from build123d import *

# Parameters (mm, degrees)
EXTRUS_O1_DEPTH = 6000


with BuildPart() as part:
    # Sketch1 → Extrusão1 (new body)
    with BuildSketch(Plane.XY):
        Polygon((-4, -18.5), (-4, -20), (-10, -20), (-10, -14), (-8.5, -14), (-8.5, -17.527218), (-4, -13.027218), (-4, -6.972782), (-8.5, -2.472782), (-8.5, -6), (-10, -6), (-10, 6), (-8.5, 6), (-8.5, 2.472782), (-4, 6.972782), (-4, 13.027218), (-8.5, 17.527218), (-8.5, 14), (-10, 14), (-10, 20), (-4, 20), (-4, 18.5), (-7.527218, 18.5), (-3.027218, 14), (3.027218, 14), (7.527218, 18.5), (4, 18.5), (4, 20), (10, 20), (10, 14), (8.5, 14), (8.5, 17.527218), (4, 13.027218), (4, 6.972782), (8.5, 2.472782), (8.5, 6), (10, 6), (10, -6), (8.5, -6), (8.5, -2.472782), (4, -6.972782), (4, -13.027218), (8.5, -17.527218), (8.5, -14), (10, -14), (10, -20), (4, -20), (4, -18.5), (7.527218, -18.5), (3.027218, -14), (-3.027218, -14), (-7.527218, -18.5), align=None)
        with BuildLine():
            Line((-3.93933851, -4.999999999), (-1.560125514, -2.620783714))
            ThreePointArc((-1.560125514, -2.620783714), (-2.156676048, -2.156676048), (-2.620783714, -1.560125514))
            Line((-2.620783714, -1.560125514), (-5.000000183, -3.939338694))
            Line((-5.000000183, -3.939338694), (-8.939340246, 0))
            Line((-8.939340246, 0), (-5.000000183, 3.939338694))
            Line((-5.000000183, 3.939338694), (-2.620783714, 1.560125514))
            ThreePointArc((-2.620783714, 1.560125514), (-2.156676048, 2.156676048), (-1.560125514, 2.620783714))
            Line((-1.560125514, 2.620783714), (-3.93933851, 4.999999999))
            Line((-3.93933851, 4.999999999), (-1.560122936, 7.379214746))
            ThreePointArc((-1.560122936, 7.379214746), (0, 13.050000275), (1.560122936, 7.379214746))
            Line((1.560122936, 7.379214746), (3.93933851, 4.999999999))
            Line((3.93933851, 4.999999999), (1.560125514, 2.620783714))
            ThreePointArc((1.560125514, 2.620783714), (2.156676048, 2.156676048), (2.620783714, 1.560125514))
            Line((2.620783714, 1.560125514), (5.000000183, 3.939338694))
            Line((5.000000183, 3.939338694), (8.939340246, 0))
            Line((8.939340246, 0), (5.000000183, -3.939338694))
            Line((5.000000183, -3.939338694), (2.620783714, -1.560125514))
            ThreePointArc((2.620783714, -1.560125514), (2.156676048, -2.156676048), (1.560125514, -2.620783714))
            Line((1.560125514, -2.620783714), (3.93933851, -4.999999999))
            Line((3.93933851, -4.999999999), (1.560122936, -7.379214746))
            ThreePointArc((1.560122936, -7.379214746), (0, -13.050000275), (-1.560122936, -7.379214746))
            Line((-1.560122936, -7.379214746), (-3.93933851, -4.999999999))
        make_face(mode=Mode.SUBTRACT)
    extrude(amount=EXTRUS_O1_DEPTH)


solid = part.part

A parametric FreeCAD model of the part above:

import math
import FreeCAD as App
import Part
import Sketcher
Q = App.Units.Quantity

doc = App.newDocument("Part")
body = doc.addObject("PartDesign::Body", "Body")

# Sketch on XY plane
sketch1 = doc.addObject("Sketcher::SketchObject", "Sketch")
body.addObject(sketch1)
sketch1.AttachmentSupport = (doc.XY_Plane, [""])
sketch1.MapMode = "FlatFace"
sketch1.addGeometry([
    Part.LineSegment(App.Vector(-4, -20, 0), App.Vector(-4, -18.5, 0)),  # 0
    Part.LineSegment(App.Vector(-4, -18.5, 0), App.Vector(-7.527218, -18.5, 0)),  # 1
    Part.LineSegment(App.Vector(-7.527218, -18.5, 0), App.Vector(-3.027218, -14, 0)),  # 2
    Part.LineSegment(App.Vector(-3.027218, -14, 0), App.Vector(3.027218, -14, 0)),  # 3
    Part.LineSegment(App.Vector(3.027218, -14, 0), App.Vector(7.527218, -18.5, 0)),  # 4
    Part.LineSegment(App.Vector(7.527218, -18.5, 0), App.Vector(4, -18.5, 0)),  # 5
    Part.LineSegment(App.Vector(4, -18.5, 0), App.Vector(4, -20, 0)),  # 6
    Part.LineSegment(App.Vector(4, -20, 0), App.Vector(10, -20, 0)),  # 7
    Part.LineSegment(App.Vector(10, -20, 0), App.Vector(10, -14, 0)),  # 8
    Part.LineSegment(App.Vector(10, -14, 0), App.Vector(8.5, -14, 0)),  # 9
    Part.LineSegment(App.Vector(8.5, -14, 0), App.Vector(8.5, -17.527218, 0)),  # 10
    Part.LineSegment(App.Vector(8.5, -17.527218, 0), App.Vector(4, -13.027218, 0)),  # 11
    Part.LineSegment(App.Vector(4, -13.027218, 0), App.Vector(4, -6.972782, 0)),  # 12
    Part.LineSegment(App.Vector(4, -6.972782, 0), App.Vector(8.5, -2.472782, 0)),  # 13
    Part.LineSegment(App.Vector(8.5, -2.472782, 0), App.Vector(8.5, -6, 0)),  # 14
    Part.LineSegment(App.Vector(8.5, -6, 0), App.Vector(10, -6, 0)),  # 15
    Part.LineSegment(App.Vector(10, -6, 0), App.Vector(10, 6, 0)),  # 16
    Part.LineSegment(App.Vector(10, 6, 0), App.Vector(8.5, 6, 0)),  # 17
    Part.LineSegment(App.Vector(8.5, 6, 0), App.Vector(8.5, 2.472782, 0)),  # 18
    Part.LineSegment(App.Vector(8.5, 2.472782, 0), App.Vector(4, 6.972782, 0)),  # 19
    Part.LineSegment(App.Vector(4, 6.972782, 0), App.Vector(4, 13.027218, 0)),  # 20
    Part.LineSegment(App.Vector(4, 13.027218, 0), App.Vector(8.5, 17.527218, 0)),  # 21
    Part.LineSegment(App.Vector(8.5, 17.527218, 0), App.Vector(8.5, 14, 0)),  # 22
    Part.LineSegment(App.Vector(8.5, 14, 0), App.Vector(10, 14, 0)),  # 23
    Part.LineSegment(App.Vector(10, 14, 0), App.Vector(10, 20, 0)),  # 24
    Part.LineSegment(App.Vector(10, 20, 0), App.Vector(4, 20, 0)),  # 25
    Part.LineSegment(App.Vector(4, 20, 0), App.Vector(4, 18.5, 0)),  # 26
    Part.LineSegment(App.Vector(4, 18.5, 0), App.Vector(7.527218, 18.5, 0)),  # 27
    Part.LineSegment(App.Vector(7.527218, 18.5, 0), App.Vector(3.027218, 14, 0)),  # 28
    Part.LineSegment(App.Vector(3.027218, 14, 0), App.Vector(-3.027218, 14, 0)),  # 29
    Part.LineSegment(App.Vector(-3.027218, 14, 0), App.Vector(-7.527218, 18.5, 0)),  # 30
    Part.LineSegment(App.Vector(-7.527218, 18.5, 0), App.Vector(-4, 18.5, 0)),  # 31
    Part.LineSegment(App.Vector(-4, 18.5, 0), App.Vector(-4, 20, 0)),  # 32
    Part.LineSegment(App.Vector(-4, 20, 0), App.Vector(-10, 20, 0)),  # 33
    Part.LineSegment(App.Vector(-10, 20, 0), App.Vector(-10, 14, 0)),  # 34
    Part.LineSegment(App.Vector(-10, 14, 0), App.Vector(-8.5, 14, 0)),  # 35
    Part.LineSegment(App.Vector(-8.5, 14, 0), App.Vector(-8.5, 17.527218, 0)),  # 36
    Part.LineSegment(App.Vector(-8.5, 17.527218, 0), App.Vector(-4, 13.027218, 0)),  # 37
    Part.LineSegment(App.Vector(-4, 13.027218, 0), App.Vector(-4, 6.972782, 0)),  # 38
    Part.LineSegment(App.Vector(-4, 6.972782, 0), App.Vector(-8.5, 2.472782, 0)),  # 39
    Part.LineSegment(App.Vector(-8.5, 2.472782, 0), App.Vector(-8.5, 6, 0)),  # 40
    Part.LineSegment(App.Vector(-8.5, 6, 0), App.Vector(-10, 6, 0)),  # 41
    Part.LineSegment(App.Vector(-10, 6, 0), App.Vector(-10, -6, 0)),  # 42
    Part.LineSegment(App.Vector(-10, -6, 0), App.Vector(-8.5, -6, 0)),  # 43
    Part.LineSegment(App.Vector(-8.5, -6, 0), App.Vector(-8.5, -2.472782, 0)),  # 44
    Part.LineSegment(App.Vector(-8.5, -2.472782, 0), App.Vector(-4, -6.972782, 0)),  # 45
    Part.LineSegment(App.Vector(-4, -6.972782, 0), App.Vector(-4, -13.027218, 0)),  # 46
    Part.LineSegment(App.Vector(-4, -13.027218, 0), App.Vector(-8.5, -17.527218, 0)),  # 47
    Part.LineSegment(App.Vector(-8.5, -17.527218, 0), App.Vector(-8.5, -14, 0)),  # 48
    Part.LineSegment(App.Vector(-8.5, -14, 0), App.Vector(-10, -14, 0)),  # 49
    Part.LineSegment(App.Vector(-10, -14, 0), App.Vector(-10, -20, 0)),  # 50
    Part.LineSegment(App.Vector(-10, -20, 0), App.Vector(-4, -20, 0)),  # 51
    Part.LineSegment(App.Vector(-3.939339, -5, 0), App.Vector(-1.560126, -2.620784, 0)),  # 52
    Part.ArcOfCircle(Part.Circle(App.Vector(-0.000016, -0.000016, 0), App.Vector(0, 0, 1), 3.049978), math.radians(-149.235203), math.radians(-120.764797)),  # 53
    Part.LineSegment(App.Vector(-2.620784, -1.560126, 0), App.Vector(-5, -3.939339, 0)),  # 54
    Part.LineSegment(App.Vector(-5, -3.939339, 0), App.Vector(-8.93934, 0, 0)),  # 55
    Part.LineSegment(App.Vector(-8.93934, 0, 0), App.Vector(-5, 3.939339, 0)),  # 56
    Part.LineSegment(App.Vector(-5, 3.939339, 0), App.Vector(-2.620784, 1.560126, 0)),  # 57
    Part.ArcOfCircle(Part.Circle(App.Vector(-0.000016, 0.000016, 0), App.Vector(0, 0, 1), 3.049978), math.radians(120.764797), math.radians(149.235203)),  # 58
    Part.LineSegment(App.Vector(-1.560126, 2.620784, 0), App.Vector(-3.939339, 5, 0)),  # 59
    Part.LineSegment(App.Vector(-3.939339, 5, 0), App.Vector(-1.560123, 7.379215, 0)),  # 60
    Part.ArcOfCircle(Part.Circle(App.Vector(0, 10, 0), App.Vector(0, 0, 1), 3.05), math.radians(-59.235157), math.radians(239.235157)),  # 61
    Part.LineSegment(App.Vector(1.560123, 7.379215, 0), App.Vector(3.939339, 5, 0)),  # 62
    Part.LineSegment(App.Vector(3.939339, 5, 0), App.Vector(1.560126, 2.620784, 0)),  # 63
    Part.ArcOfCircle(Part.Circle(App.Vector(0.000016, 0.000016, 0), App.Vector(0, 0, 1), 3.049978), math.radians(30.764797), math.radians(59.235203)),  # 64
    Part.LineSegment(App.Vector(2.620784, 1.560126, 0), App.Vector(5, 3.939339, 0)),  # 65
    Part.LineSegment(App.Vector(5, 3.939339, 0), App.Vector(8.93934, 0, 0)),  # 66
    Part.LineSegment(App.Vector(8.93934, 0, 0), App.Vector(5, -3.939339, 0)),  # 67
    Part.LineSegment(App.Vector(5, -3.939339, 0), App.Vector(2.620784, -1.560126, 0)),  # 68
    Part.ArcOfCircle(Part.Circle(App.Vector(0.000016, -0.000016, 0), App.Vector(0, 0, 1), 3.049978), math.radians(-59.235203), math.radians(-30.764797)),  # 69
    Part.LineSegment(App.Vector(1.560126, -2.620784, 0), App.Vector(3.939339, -5, 0)),  # 70
    Part.LineSegment(App.Vector(3.939339, -5, 0), App.Vector(1.560123, -7.379215, 0)),  # 71
    Part.ArcOfCircle(Part.Circle(App.Vector(0, -10, 0), App.Vector(0, 0, 1), 3.05), math.radians(120.764843), math.radians(419.235157)),  # 72
    Part.LineSegment(App.Vector(-1.560123, -7.379215, 0), App.Vector(-3.939339, -5, 0)),  # 73
], False)
sketch1.addConstraint([
    Sketcher.Constraint("Coincident", 0, 2, 1, 1),
    Sketcher.Constraint("Coincident", 1, 2, 2, 1),
    Sketcher.Constraint("Coincident", 2, 2, 3, 1),
    Sketcher.Constraint("Coincident", 3, 2, 4, 1),
    Sketcher.Constraint("Coincident", 4, 2, 5, 1),
    Sketcher.Constraint("Coincident", 5, 2, 6, 1),
    Sketcher.Constraint("Coincident", 6, 2, 7, 1),
    Sketcher.Constraint("Coincident", 7, 2, 8, 1),
    Sketcher.Constraint("Coincident", 8, 2, 9, 1),
    Sketcher.Constraint("Coincident", 9, 2, 10, 1),
    Sketcher.Constraint("Coincident", 10, 2, 11, 1),
    Sketcher.Constraint("Coincident", 11, 2, 12, 1),
    Sketcher.Constraint("Coincident", 12, 2, 13, 1),
    Sketcher.Constraint("Coincident", 13, 2, 14, 1),
    Sketcher.Constraint("Coincident", 14, 2, 15, 1),
    Sketcher.Constraint("Coincident", 15, 2, 16, 1),
    Sketcher.Constraint("Coincident", 16, 2, 17, 1),
    Sketcher.Constraint("Coincident", 17, 2, 18, 1),
    Sketcher.Constraint("Coincident", 18, 2, 19, 1),
    Sketcher.Constraint("Coincident", 19, 2, 20, 1),
    Sketcher.Constraint("Coincident", 20, 2, 21, 1),
    Sketcher.Constraint("Coincident", 21, 2, 22, 1),
    Sketcher.Constraint("Coincident", 22, 2, 23, 1),
    Sketcher.Constraint("Coincident", 23, 2, 24, 1),
    Sketcher.Constraint("Coincident", 24, 2, 25, 1),
    Sketcher.Constraint("Coincident", 25, 2, 26, 1),
    Sketcher.Constraint("Coincident", 26, 2, 27, 1),
    Sketcher.Constraint("Coincident", 27, 2, 28, 1),
    Sketcher.Constraint("Coincident", 28, 2, 29, 1),
    Sketcher.Constraint("Coincident", 29, 2, 30, 1),
    Sketcher.Constraint("Coincident", 30, 2, 31, 1),
    Sketcher.Constraint("Coincident", 31, 2, 32, 1),
    Sketcher.Constraint("Coincident", 32, 2, 33, 1),
    Sketcher.Constraint("Coincident", 33, 2, 34, 1),
    Sketcher.Constraint("Coincident", 34, 2, 35, 1),
    Sketcher.Constraint("Coincident", 35, 2, 36, 1),
    Sketcher.Constraint("Coincident", 36, 2, 37, 1),
    Sketcher.Constraint("Coincident", 37, 2, 38, 1),
    Sketcher.Constraint("Coincident", 38, 2, 39, 1),
    Sketcher.Constraint("Coincident", 39, 2, 40, 1),
    Sketcher.Constraint("Coincident", 40, 2, 41, 1),
    Sketcher.Constraint("Coincident", 41, 2, 42, 1),
    Sketcher.Constraint("Coincident", 42, 2, 43, 1),
    Sketcher.Constraint("Coincident", 43, 2, 44, 1),
    Sketcher.Constraint("Coincident", 44, 2, 45, 1),
    Sketcher.Constraint("Coincident", 45, 2, 46, 1),
    Sketcher.Constraint("Coincident", 46, 2, 47, 1),
    Sketcher.Constraint("Coincident", 47, 2, 48, 1),
    Sketcher.Constraint("Coincident", 48, 2, 49, 1),
    Sketcher.Constraint("Coincident", 49, 2, 50, 1),
    Sketcher.Constraint("Coincident", 50, 2, 51, 1),
    Sketcher.Constraint("Coincident", 51, 2, 0, 1),
    Sketcher.Constraint("Coincident", 52, 2, 53, 2),
    Sketcher.Constraint("Coincident", 53, 1, 54, 1),
    Sketcher.Constraint("Coincident", 54, 2, 55, 1),
    Sketcher.Constraint("Coincident", 55, 2, 56, 1),
    Sketcher.Constraint("Coincident", 56, 2, 57, 1),
    Sketcher.Constraint("Coincident", 57, 2, 58, 2),
    Sketcher.Constraint("Coincident", 58, 1, 59, 1),
    Sketcher.Constraint("Coincident", 59, 2, 60, 1),
    Sketcher.Constraint("Coincident", 60, 2, 61, 2),
    Sketcher.Constraint("Coincident", 61, 1, 62, 1),
    Sketcher.Constraint("Coincident", 62, 2, 63, 1),
    Sketcher.Constraint("Coincident", 63, 2, 64, 2),
    Sketcher.Constraint("Coincident", 64, 1, 65, 1),
    Sketcher.Constraint("Coincident", 65, 2, 66, 1),
    Sketcher.Constraint("Coincident", 66, 2, 67, 1),
    Sketcher.Constraint("Coincident", 67, 2, 68, 1),
    Sketcher.Constraint("Coincident", 68, 2, 69, 2),
    Sketcher.Constraint("Coincident", 69, 1, 70, 1),
    Sketcher.Constraint("Coincident", 70, 2, 71, 1),
    Sketcher.Constraint("Coincident", 71, 2, 72, 2),
    Sketcher.Constraint("Coincident", 72, 1, 73, 1),
    Sketcher.Constraint("Coincident", 73, 2, 52, 1),
    Sketcher.Constraint("Vertical", 0),
    Sketcher.Constraint("Horizontal", 1),
    Sketcher.Constraint("Horizontal", 3),
    Sketcher.Constraint("Horizontal", 5),
    Sketcher.Constraint("Vertical", 6),
    Sketcher.Constraint("Horizontal", 7),
    Sketcher.Constraint("Vertical", 8),
    Sketcher.Constraint("Horizontal", 9),
    Sketcher.Constraint("Vertical", 10),
    Sketcher.Constraint("Vertical", 12),
    Sketcher.Constraint("Vertical", 14),
    Sketcher.Constraint("Horizontal", 15),
    Sketcher.Constraint("Vertical", 16),
    Sketcher.Constraint("Horizontal", 17),
    Sketcher.Constraint("Vertical", 18),
    Sketcher.Constraint("Vertical", 20),
    Sketcher.Constraint("Vertical", 22),
    Sketcher.Constraint("Horizontal", 23),
    Sketcher.Constraint("Vertical", 24),
    Sketcher.Constraint("Horizontal", 25),
    Sketcher.Constraint("Vertical", 26),
    Sketcher.Constraint("Horizontal", 27),
    Sketcher.Constraint("Horizontal", 29),
    Sketcher.Constraint("Horizontal", 31),
    Sketcher.Constraint("Vertical", 32),
    Sketcher.Constraint("Horizontal", 33),
    Sketcher.Constraint("Vertical", 34),
    Sketcher.Constraint("Horizontal", 35),
    Sketcher.Constraint("Vertical", 36),
    Sketcher.Constraint("Vertical", 38),
    Sketcher.Constraint("Vertical", 40),
    Sketcher.Constraint("Horizontal", 41),
    Sketcher.Constraint("Vertical", 42),
    Sketcher.Constraint("Horizontal", 43),
    Sketcher.Constraint("Vertical", 44),
    Sketcher.Constraint("Vertical", 46),
    Sketcher.Constraint("Vertical", 48),
    Sketcher.Constraint("Horizontal", 49),
    Sketcher.Constraint("Vertical", 50),
    Sketcher.Constraint("Horizontal", 51),
    Sketcher.Constraint("Equal", 53, 58),
    Sketcher.Constraint("Equal", 58, 64),
    Sketcher.Constraint("Equal", 64, 69),
    Sketcher.Constraint("Equal", 61, 72),
    Sketcher.Constraint("Symmetric", 53, 3, 64, 3, -1, 1),
    Sketcher.Constraint("Symmetric", 58, 3, 69, 3, -1, 1),
    Sketcher.Constraint("Symmetric", 61, 3, 72, 3, -1, 1),
    Sketcher.Constraint("Symmetric", 0, 2, 26, 2, -1, 1),
    Sketcher.Constraint("Symmetric", 2, 2, 28, 2, -1, 1),
    Sketcher.Constraint("Symmetric", 4, 2, 30, 2, -1, 1),
    Sketcher.Constraint("Symmetric", 6, 2, 32, 2, -1, 1),
    Sketcher.Constraint("Symmetric", 8, 2, 34, 2, -1, 1),
    Sketcher.Constraint("Symmetric", 10, 2, 36, 2, -1, 1),
    Sketcher.Constraint("Symmetric", 11, 2, 37, 2, -1, 1),
    Sketcher.Constraint("Symmetric", 13, 2, 39, 2, -1, 1),
    Sketcher.Constraint("Symmetric", 15, 2, 41, 2, -1, 1),
    Sketcher.Constraint("Symmetric", 17, 2, 43, 2, -1, 1),
    Sketcher.Constraint("Symmetric", 19, 2, 45, 2, -1, 1),
    Sketcher.Constraint("Symmetric", 21, 2, 47, 2, -1, 1),
    Sketcher.Constraint("Symmetric", 23, 2, 49, 2, -1, 1),
    Sketcher.Constraint("Symmetric", 54, 2, 65, 2, -1, 1),
    Sketcher.Constraint("Symmetric", 55, 2, 66, 2, -1, 1),
    Sketcher.Constraint("Symmetric", 56, 2, 67, 2, -1, 1),
    Sketcher.Constraint("Symmetric", 59, 2, 70, 2, -1, 1),
    Sketcher.Constraint("Symmetric", 62, 2, 73, 2, -1, 1),
    Sketcher.Constraint("Symmetric", 58, 3, 64, 3, -2),
    Sketcher.Constraint("Symmetric", 1, 2, 4, 2, -2),
    Sketcher.Constraint("Symmetric", 25, 2, 32, 2, -2),
    Sketcher.Constraint("Symmetric", 23, 2, 34, 2, -2),
    Sketcher.Constraint("Symmetric", 21, 2, 36, 2, -2),
    Sketcher.Constraint("Symmetric", 20, 2, 37, 2, -2),
    Sketcher.Constraint("Symmetric", 18, 2, 39, 2, -2),
    Sketcher.Constraint("Symmetric", 60, 2, 61, 1, -2),
    Sketcher.Constraint("Symmetric", 59, 2, 62, 2, -2),
    Sketcher.Constraint("Symmetric", 56, 2, 65, 2, -2),
    Sketcher.Constraint("PointOnObject", 55, 2, -1),
    Sketcher.Constraint("Perpendicular", 2, 4),
    Sketcher.Constraint("Parallel", 4, 11),
    Sketcher.Constraint("Perpendicular", 11, 13),
    Sketcher.Constraint("Perpendicular", 13, 19),
    Sketcher.Constraint("Perpendicular", 19, 21),
    Sketcher.Constraint("Parallel", 21, 28),
    Sketcher.Constraint("Perpendicular", 28, 30),
    Sketcher.Constraint("Perpendicular", 37, 39),
    Sketcher.Constraint("Perpendicular", 39, 45),
    Sketcher.Constraint("Perpendicular", 45, 47),
    Sketcher.Constraint("Parallel", 47, 52),
    Sketcher.Constraint("Parallel", 52, 54),
    Sketcher.Constraint("Perpendicular", 54, 55),
    Sketcher.Constraint("Perpendicular", 56, 57),
    Sketcher.Constraint("Parallel", 57, 59),
    Sketcher.Constraint("Perpendicular", 59, 60),
    Sketcher.Constraint("Perpendicular", 62, 63),
    Sketcher.Constraint("Parallel", 63, 65),
    Sketcher.Constraint("Perpendicular", 67, 68),
    Sketcher.Constraint("Parallel", 68, 70),
    Sketcher.Constraint("Perpendicular", 70, 71),
    Sketcher.Constraint("Perpendicular", 71, 73),
    Sketcher.Constraint("Horizontal", 3, 2, 8, 2),
    Sketcher.Constraint("Horizontal", 17, 2, 40, 2),
    Sketcher.Constraint("Horizontal", 7, 2, 50, 2),
    Sketcher.Constraint("Vertical", 6, 2, 11, 2),
    Sketcher.Constraint("Vertical", 10, 2, 13, 2),
    Sketcher.Constraint("Vertical", 8, 2, 15, 2),
    Sketcher.Constraint("Equal", 49, 0),
    Sketcher.Constraint("Equal", 51, 8),
    Sketcher.Constraint("Equal", 31, 10),
    Sketcher.Constraint("Equal", 29, 12),
    Sketcher.Constraint("Equal", 10, 14),
    Sketcher.Constraint("Equal", 52, 54),
    Sketcher.Constraint("Equal", 59, 60),
    Sketcher.Constraint("DistanceX", 7, 1, 7, 2, Q("6 mm")),
    Sketcher.Constraint("DistanceY", 16, 1, 16, 2, Q("12 mm")),
    Sketcher.Constraint("Radius", 61, Q("3.05 mm")),
    Sketcher.Constraint("DistanceX", 9, 2, 9, 1, Q("1.5 mm")),
    Sketcher.Constraint("DistanceY", -1, 1, 61, 3, Q("10 mm")),
    Sketcher.Constraint("DistanceX", 0, 2, -1, 1, Q("4 mm")),
    Sketcher.Constraint("DistanceX", 54, 2, -1, 1, Q("5 mm")),
    Sketcher.Constraint("DistanceY", -1, 1, 59, 2, Q("5 mm")),
    Sketcher.Constraint("Radius", 53, Q("3.049978 mm")),
    Sketcher.Constraint("DistanceX", 1, 2, 1, 1, Q("3.527218 mm")),
    Sketcher.Constraint("Distance", 60, Q("3.364718 mm")),
    Sketcher.Constraint("DistanceY", 54, 2, -1, 1, Q("3.939339 mm")),
])
pad1 = doc.addObject("PartDesign::Pad", "Pad")
body.addObject(pad1)
pad1.Profile = sketch1
pad1.Length = 6000

doc.recompute()
